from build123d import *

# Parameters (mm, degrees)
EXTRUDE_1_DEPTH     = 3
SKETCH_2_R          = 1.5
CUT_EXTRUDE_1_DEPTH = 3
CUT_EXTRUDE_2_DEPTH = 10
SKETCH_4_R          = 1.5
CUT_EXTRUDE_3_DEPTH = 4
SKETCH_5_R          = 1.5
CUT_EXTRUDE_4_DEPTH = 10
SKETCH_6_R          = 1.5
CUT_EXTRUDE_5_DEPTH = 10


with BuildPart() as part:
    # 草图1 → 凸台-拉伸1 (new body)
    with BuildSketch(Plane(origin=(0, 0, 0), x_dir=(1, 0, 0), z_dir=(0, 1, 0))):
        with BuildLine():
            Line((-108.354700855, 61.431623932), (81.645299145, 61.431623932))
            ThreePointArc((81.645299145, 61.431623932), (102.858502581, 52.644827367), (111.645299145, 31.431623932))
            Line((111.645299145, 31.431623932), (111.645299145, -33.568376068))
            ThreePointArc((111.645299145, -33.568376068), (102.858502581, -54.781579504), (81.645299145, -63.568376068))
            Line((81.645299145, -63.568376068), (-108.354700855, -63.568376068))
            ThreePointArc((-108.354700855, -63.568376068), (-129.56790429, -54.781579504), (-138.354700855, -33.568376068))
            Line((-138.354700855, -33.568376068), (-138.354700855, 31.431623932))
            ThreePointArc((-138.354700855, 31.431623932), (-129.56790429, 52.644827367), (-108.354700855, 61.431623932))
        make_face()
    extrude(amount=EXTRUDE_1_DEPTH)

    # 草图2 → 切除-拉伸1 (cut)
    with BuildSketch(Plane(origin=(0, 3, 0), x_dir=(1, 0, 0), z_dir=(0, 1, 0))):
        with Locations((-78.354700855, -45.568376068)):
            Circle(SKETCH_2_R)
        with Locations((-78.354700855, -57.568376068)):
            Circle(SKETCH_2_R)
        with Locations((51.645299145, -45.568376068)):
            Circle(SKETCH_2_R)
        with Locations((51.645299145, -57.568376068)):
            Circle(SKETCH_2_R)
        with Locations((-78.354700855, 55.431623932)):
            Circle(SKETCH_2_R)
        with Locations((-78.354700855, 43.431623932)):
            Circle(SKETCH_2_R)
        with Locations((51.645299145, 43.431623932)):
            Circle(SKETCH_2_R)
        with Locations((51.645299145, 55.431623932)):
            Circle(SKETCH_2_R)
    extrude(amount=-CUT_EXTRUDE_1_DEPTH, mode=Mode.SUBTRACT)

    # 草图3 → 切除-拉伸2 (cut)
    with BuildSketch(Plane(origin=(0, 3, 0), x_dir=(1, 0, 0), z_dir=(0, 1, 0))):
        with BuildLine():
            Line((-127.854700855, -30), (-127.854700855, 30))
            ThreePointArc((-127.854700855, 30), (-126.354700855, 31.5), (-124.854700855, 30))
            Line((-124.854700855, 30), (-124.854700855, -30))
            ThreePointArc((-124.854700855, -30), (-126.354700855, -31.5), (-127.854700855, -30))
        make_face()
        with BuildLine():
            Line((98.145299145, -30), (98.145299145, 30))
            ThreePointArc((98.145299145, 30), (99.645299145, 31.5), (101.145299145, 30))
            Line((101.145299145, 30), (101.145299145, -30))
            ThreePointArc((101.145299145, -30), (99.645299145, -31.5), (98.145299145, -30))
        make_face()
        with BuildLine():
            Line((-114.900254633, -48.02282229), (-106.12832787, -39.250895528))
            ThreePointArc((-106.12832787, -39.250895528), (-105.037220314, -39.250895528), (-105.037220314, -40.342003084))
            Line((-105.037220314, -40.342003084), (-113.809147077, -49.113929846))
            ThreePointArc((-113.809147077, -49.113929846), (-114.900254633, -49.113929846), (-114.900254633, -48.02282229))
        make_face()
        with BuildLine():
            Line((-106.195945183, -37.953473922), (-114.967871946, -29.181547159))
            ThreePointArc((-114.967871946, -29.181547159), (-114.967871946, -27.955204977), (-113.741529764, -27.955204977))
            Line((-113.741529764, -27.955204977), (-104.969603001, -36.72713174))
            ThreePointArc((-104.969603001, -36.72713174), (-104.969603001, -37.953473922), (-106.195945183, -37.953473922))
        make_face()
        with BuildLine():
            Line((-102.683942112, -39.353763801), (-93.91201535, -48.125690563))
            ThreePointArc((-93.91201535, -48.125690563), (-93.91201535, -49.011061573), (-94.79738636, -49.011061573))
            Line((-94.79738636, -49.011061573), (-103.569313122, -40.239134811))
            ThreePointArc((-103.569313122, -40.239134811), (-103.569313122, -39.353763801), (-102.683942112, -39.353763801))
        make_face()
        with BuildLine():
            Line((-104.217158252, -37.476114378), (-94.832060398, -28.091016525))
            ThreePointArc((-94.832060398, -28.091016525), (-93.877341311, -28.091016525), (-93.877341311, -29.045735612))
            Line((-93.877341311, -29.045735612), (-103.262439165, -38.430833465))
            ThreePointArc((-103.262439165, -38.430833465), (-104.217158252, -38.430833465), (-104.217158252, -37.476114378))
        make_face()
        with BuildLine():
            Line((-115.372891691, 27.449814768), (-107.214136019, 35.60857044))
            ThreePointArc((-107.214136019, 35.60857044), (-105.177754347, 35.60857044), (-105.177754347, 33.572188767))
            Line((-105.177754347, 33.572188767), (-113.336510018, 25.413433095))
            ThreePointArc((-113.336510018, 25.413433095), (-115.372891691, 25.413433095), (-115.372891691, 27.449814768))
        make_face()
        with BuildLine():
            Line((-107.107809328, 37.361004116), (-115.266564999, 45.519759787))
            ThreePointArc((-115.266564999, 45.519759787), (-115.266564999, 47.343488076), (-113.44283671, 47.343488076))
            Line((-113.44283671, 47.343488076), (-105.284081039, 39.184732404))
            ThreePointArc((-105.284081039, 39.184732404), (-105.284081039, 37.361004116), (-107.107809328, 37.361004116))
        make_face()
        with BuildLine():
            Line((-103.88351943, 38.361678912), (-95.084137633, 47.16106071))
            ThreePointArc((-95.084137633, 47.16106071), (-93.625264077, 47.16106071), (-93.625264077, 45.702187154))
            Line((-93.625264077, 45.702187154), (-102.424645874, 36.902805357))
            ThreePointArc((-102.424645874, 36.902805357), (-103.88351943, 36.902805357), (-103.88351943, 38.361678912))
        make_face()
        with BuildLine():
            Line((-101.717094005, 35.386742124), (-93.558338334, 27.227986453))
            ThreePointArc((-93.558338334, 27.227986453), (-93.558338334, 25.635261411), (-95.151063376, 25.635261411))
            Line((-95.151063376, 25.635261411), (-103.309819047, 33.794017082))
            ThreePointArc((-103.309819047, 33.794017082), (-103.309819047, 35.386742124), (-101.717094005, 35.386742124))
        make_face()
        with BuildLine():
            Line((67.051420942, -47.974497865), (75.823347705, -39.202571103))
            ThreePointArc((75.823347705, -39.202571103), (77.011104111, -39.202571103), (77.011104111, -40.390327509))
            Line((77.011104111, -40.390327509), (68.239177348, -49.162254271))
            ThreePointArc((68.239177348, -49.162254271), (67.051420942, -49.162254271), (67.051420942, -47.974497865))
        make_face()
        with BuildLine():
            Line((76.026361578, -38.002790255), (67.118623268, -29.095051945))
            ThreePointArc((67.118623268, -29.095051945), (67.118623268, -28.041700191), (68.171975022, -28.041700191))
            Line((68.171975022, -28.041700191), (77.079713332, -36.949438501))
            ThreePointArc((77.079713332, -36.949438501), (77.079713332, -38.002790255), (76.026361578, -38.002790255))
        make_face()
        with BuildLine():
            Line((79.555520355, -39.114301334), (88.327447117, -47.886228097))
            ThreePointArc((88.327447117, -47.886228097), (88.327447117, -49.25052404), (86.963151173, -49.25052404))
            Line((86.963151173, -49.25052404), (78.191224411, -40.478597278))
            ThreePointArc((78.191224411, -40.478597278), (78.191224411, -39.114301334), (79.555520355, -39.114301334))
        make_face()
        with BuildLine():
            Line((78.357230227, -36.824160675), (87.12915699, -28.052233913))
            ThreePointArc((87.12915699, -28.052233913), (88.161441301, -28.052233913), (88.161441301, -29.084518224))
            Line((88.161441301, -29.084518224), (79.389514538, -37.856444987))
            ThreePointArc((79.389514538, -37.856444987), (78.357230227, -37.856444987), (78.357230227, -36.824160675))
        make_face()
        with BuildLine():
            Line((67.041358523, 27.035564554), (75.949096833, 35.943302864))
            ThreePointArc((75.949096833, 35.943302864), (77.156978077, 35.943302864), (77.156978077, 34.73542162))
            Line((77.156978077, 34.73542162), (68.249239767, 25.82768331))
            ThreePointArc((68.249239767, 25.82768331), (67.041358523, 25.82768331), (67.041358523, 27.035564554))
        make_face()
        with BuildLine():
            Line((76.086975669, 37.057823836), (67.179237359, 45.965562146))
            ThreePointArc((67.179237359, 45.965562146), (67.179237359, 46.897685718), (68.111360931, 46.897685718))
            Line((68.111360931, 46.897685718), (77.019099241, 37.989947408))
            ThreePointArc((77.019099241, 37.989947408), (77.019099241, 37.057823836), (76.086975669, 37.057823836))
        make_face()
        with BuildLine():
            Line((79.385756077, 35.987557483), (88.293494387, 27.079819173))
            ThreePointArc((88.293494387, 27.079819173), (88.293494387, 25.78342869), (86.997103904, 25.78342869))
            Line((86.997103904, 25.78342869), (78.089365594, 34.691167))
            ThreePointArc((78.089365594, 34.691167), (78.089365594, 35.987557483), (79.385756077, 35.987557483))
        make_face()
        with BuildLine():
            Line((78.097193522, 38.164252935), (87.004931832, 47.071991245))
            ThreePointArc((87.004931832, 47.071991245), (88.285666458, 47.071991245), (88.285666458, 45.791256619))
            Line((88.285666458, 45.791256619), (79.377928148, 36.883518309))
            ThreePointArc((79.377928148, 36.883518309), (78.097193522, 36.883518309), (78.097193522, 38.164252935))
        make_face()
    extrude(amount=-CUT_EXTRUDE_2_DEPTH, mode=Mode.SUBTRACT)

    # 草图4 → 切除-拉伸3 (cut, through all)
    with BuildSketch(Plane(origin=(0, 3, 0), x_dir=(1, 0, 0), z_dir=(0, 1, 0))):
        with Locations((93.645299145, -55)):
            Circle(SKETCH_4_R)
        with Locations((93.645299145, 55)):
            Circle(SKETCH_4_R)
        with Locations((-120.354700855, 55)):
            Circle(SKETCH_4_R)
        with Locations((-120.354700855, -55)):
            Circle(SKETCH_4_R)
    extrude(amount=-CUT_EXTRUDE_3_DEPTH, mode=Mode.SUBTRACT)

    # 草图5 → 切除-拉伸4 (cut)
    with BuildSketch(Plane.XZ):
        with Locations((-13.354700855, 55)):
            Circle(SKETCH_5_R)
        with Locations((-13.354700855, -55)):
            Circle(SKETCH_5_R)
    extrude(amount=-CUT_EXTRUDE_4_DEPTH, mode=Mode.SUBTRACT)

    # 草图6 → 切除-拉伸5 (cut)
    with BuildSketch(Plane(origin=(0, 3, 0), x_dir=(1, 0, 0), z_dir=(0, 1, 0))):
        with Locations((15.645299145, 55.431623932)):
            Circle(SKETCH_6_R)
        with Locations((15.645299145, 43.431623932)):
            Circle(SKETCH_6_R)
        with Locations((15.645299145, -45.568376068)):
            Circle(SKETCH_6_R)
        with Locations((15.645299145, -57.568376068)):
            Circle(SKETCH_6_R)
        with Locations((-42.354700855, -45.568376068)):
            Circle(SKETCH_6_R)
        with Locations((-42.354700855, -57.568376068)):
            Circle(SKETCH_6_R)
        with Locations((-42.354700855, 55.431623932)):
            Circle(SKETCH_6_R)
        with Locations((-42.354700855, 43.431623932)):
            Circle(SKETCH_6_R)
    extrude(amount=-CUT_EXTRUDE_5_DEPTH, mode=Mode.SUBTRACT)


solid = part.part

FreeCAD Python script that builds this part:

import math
import FreeCAD as App
import Part
import Sketcher

doc = App.newDocument("Part")
body = doc.addObject("PartDesign::Body", "Body")

# Sketch on XZ plane
sketch1 = body.newObject("Sketcher::SketchObject", "Sketch")
sketch1.AttachmentSupport = (doc.getObject("XZ_Plane"), [""])
sketch1.MapMode = "FlatFace"
sketch1.addGeometry(Part.LineSegment(App.Vector(82, -61, 0), App.Vector(-108, -61, 0)), False)
sketch1.addGeometry(Part.ArcOfCircle(Part.Circle(App.Vector(-108, -31, 0), App.Vector(0, 0, 1), 30), math.radians(-180), math.radians(-90)), False)
sketch1.addGeometry(Part.LineSegment(App.Vector(-138, -31, 0), App.Vector(-138, 34, 0)), False)
sketch1.addGeometry(Part.ArcOfCircle(Part.Circle(App.Vector(-108, 34, 0), App.Vector(0, 0, 1), 30), math.radians(90), math.radians(180)), False)
sketch1.addGeometry(Part.LineSegment(App.Vector(-108, 64, 0), App.Vector(82, 64, 0)), False)
sketch1.addGeometry(Part.ArcOfCircle(Part.Circle(App.Vector(82, 34, 0), App.Vector(0, 0, 1), 30), math.radians(0), math.radians(90)), False)
sketch1.addGeometry(Part.LineSegment(App.Vector(112, 34, 0), App.Vector(112, -31, 0)), False)
sketch1.addGeometry(Part.ArcOfCircle(Part.Circle(App.Vector(82, -31, 0), App.Vector(0, 0, 1), 30), math.radians(-90), math.radians(0)), False)
sketch1.addConstraint(Sketcher.Constraint("Tangent", 0, 2, 1, 2))
sketch1.addConstraint(Sketcher.Constraint("Tangent", 1, 1, 2, 1))
sketch1.addConstraint(Sketcher.Constraint("Tangent", 2, 2, 3, 2))
sketch1.addConstraint(Sketcher.Constraint("Tangent", 3, 1, 4, 1))
sketch1.addConstraint(Sketcher.Constraint("Tangent", 4, 2, 5, 2))
sketch1.addConstraint(Sketcher.Constraint("Tangent", 5, 1, 6, 1))
sketch1.addConstraint(Sketcher.Constraint("Tangent", 6, 2, 7, 2))
sketch1.addConstraint(Sketcher.Constraint("Tangent", 7, 1, 0, 1))
sketch1.addConstraint(Sketcher.Constraint("Horizontal", 0))
sketch1.addConstraint(Sketcher.Constraint("Vertical", 2))
sketch1.addConstraint(Sketcher.Constraint("Horizontal", 4))
sketch1.addConstraint(Sketcher.Constraint("Vertical", 6))
sketch1.addConstraint(Sketcher.Constraint("Equal", 1, 3))
sketch1.addConstraint(Sketcher.Constraint("Equal", 3, 5))
sketch1.addConstraint(Sketcher.Constraint("Equal", 5, 7))
sketch1.addConstraint(Sketcher.Constraint("Radius", 1, 30.0))
sketch1.addConstraint(Sketcher.Constraint("DistanceX", 0, 2, 0, 1, 190.0))
sketch1.addConstraint(Sketcher.Constraint("DistanceY", 2, 1, 2, 2, 65.0))
sketch1.addConstraint(Sketcher.Constraint("DistanceX", 1, 3, -1, 1, 108.354701))
sketch1.addConstraint(Sketcher.Constraint("DistanceY", 1, 3, -1, 1, 31.431624))
pad1 = body.newObject("PartDesign::Pad", "Pad")
pad1.Profile = sketch1
pad1.Length = 3
pad1.Reversed = True

# Sketch on XZ plane
sketch2 = body.newObject("Sketcher::SketchObject", "Sketch001")
sketch2.AttachmentSupport = (doc.getObject("XZ_Plane"), [""])
sketch2.MapMode = "FlatFace"
sketch2.AttachmentOffset = App.Placement(App.Vector(0, 0, -3), App.Rotation())
sketch2.addGeometry(Part.Circle(App.Vector(-78.4, 45.6, 0), App.Vector(0, 0, 1), 1.5), False)
sketch2.addGeometry(Part.Circle(App.Vector(-78.4, 57.6, 0), App.Vector(0, 0, 1), 1.5), False)
sketch2.addGeometry(Part.Circle(App.Vector(51.6, 45.6, 0), App.Vector(0, 0, 1), 1.5), False)
sketch2.addGeometry(Part.Circle(App.Vector(51.6, 57.6, 0), App.Vector(0, 0, 1), 1.5), False)
sketch2.addGeometry(Part.Circle(App.Vector(-78.4, -55.4, 0), App.Vector(0, 0, 1), 1.5), False)
sketch2.addGeometry(Part.Circle(App.Vector(-78.4, -43.4, 0), App.Vector(0, 0, 1), 1.5), False)
sketch2.addGeometry(Part.Circle(App.Vector(51.6, -43.4, 0), App.Vector(0, 0, 1), 1.5), False)
sketch2.addGeometry(Part.Circle(App.Vector(51.6, -55.4, 0), App.Vector(0, 0, 1), 1.5), False)
sketch2.addConstraint(Sketcher.Constraint("Equal", 0, 1))
sketch2.addConstraint(Sketcher.Constraint("Equal", 1, 2))
sketch2.addConstraint(Sketcher.Constraint("Equal", 2, 3))
sketch2.addConstraint(Sketcher.Constraint("Equal", 3, 4))
sketch2.addConstraint(Sketcher.Constraint("Equal", 4, 5))
sketch2.addConstraint(Sketcher.Constraint("Equal", 5, 6))
sketch2.addConstraint(Sketcher.Constraint("Equal", 6, 7))
sketch2.addConstraint(Sketcher.Constraint("Horizontal", 0, 3, 2, 3))
sketch2.addConstraint(Sketcher.Constraint("Horizontal", 1, 3, 3, 3))
sketch2.addConstraint(Sketcher.Constraint("Horizontal", 5, 3, 6, 3))
sketch2.addConstraint(Sketcher.Constraint("Horizontal", 4, 3, 7, 3))
sketch2.addConstraint(Sketcher.Constraint("Vertical", 0, 3, 1, 3))
sketch2.addConstraint(Sketcher.Constraint("Vertical", 2, 3, 3, 3))
sketch2.addConstraint(Sketcher.Constraint("Vertical", 1, 3, 4, 3))
sketch2.addConstraint(Sketcher.Constraint("Vertical", 4, 3, 5, 3))
sketch2.addConstraint(Sketcher.Constraint("Vertical", 3, 3, 6, 3))
sketch2.addConstraint(Sketcher.Constraint("Vertical", 6, 3, 7, 3))
sketch2.addConstraint(Sketcher.Constraint("Diameter", 0, 3.0))
sketch2.addConstraint(Sketcher.Constraint("DistanceY", 0, 3, 1, 3, 12.0))
sketch2.addConstraint(Sketcher.Constraint("DistanceX", 0, 3, 2, 3, 130.0))
sketch2.addConstraint(Sketcher.Constraint("DistanceY", 4, 3, 0, 3, 101.0))
sketch2.addConstraint(Sketcher.Constraint("DistanceY", 4, 3, 5, 3, 12.0))
sketch2.addConstraint(Sketcher.Constraint("DistanceX", 0, 3, -1, 1, 78.354701))
sketch2.addConstraint(Sketcher.Constraint("DistanceY", -1, 1, 0, 3, 45.568376))
pocket1 = body.newObject("PartDesign::Pocket", "Pocket")
pocket1.Profile = sketch2
pocket1.Length = 3
pocket1.Reversed = True

# Sketch on XZ plane
sketch3 = body.newObject("Sketcher::SketchObject", "Sketch002")
sketch3.AttachmentSupport = (doc.getObject("XZ_Plane"), [""])
sketch3.MapMode = "FlatFace"
sketch3.AttachmentOffset = App.Placement(App.Vector(0, 0, -3), App.Rotation())
sketch3.addGeometry(Part.LineSegment(App.Vector(-127.9, -30, 0), App.Vector(-127.9, 30, 0)), False)
sketch3.addGeometry(Part.ArcOfCircle(Part.Circle(App.Vector(-126.4, 30, 0), App.Vector(0, 0, 1), 1.5), math.radians(0), math.radians(180)), False)
sketch3.addGeometry(Part.LineSegment(App.Vector(-124.9, 30, 0), App.Vector(-124.9, -30, 0)), False)
sketch3.addGeometry(Part.ArcOfCircle(Part.Circle(App.Vector(-126.4, -30, 0), App.Vector(0, 0, 1), 1.5), math.radians(180), math.radians(360)), False)
sketch3.addGeometry(Part.LineSegment(App.Vector(98.1, -30, 0), App.Vector(98.1, 30, 0)), False)
sketch3.addGeometry(Part.ArcOfCircle(Part.Circle(App.Vector(99.6, 30, 0), App.Vector(0, 0, 1), 1.5), math.radians(0), math.radians(180)), False)
sketch3.addGeometry(Part.LineSegment(App.Vector(101.1, 30, 0), App.Vector(101.1, -30, 0)), False)
sketch3.addGeometry(Part.ArcOfCircle(Part.Circle(App.Vector(99.6, -30, 0), App.Vector(0, 0, 1), 1.5), math.radians(180), math.radians(360)), False)
sketch3.addGeometry(Part.LineSegment(App.Vector(-106.1, 39.3, 0), App.Vector(-114.9, 48, 0)), False)
sketch3.addGeometry(Part.ArcOfCircle(Part.Circle(App.Vector(-114.4, 48.6, 0), App.Vector(0, 0, 1), 0.8), math.radians(45), math.radians(225)), False)
sketch3.addGeometry(Part.LineSegment(App.Vector(-113.8, 49.1, 0), App.Vector(-105, 40.3, 0)), False)
sketch3.addGeometry(Part.ArcOfCircle(Part.Circle(App.Vector(-105.6, 39.8, 0), App.Vector(0, 0, 1), 0.8), math.radians(-135), math.radians(45)), False)
sketch3.addGeometry(Part.LineSegment(App.Vector(-115, 29.2, 0), App.Vector(-106.2, 38, 0)), False)
sketch3.addGeometry(Part.ArcOfCircle(Part.Circle(App.Vector(-105.6, 37.3, 0), App.Vector(0, 0, 1), 0.9), math.radians(-45), math.radians(135)), False)
sketch3.addGeometry(Part.LineSegment(App.Vector(-105, 36.7, 0), App.Vector(-113.7, 28, 0)), False)
sketch3.addGeometry(Part.ArcOfCircle(Part.Circle(App.Vector(-114.4, 28.6, 0), App.Vector(0, 0, 1), 0.9), math.radians(135), math.radians(315)), False)
sketch3.addGeometry(Part.LineSegment(App.Vector(-93.9, 48.1, 0), App.Vector(-102.7, 39.4, 0)), False)
sketch3.addGeometry(Part.ArcOfCircle(Part.Circle(App.Vector(-103.1, 39.8, 0), App.Vector(0, 0, 1), 0.6), math.radians(135), math.radians(315)), False)
sketch3.addGeometry(Part.LineSegment(App.Vector(-103.6, 40.2, 0), App.Vector(-94.8, 49, 0)), False)
sketch3.addGeometry(Part.ArcOfCircle(Part.Circle(App.Vector(-94.4, 48.6, 0), App.Vector(0, 0, 1), 0.6), math.radians(-45), math.radians(135)), False)
sketch3.addGeometry(Part.LineSegment(App.Vector(-94.8, 28.1, 0), App.Vector(-104.2, 37.5, 0)), False)
sketch3.addGeometry(Part.ArcOfCircle(Part.Circle(App.Vector(-103.7, 38, 0), App.Vector(0, 0, 1), 0.7), math.radians(45), math.radians(225)), False)
sketch3.addGeometry(Part.LineSegment(App.Vector(-103.3, 38.4, 0), App.Vector(-93.9, 29, 0)), False)
sketch3.addGeometry(Part.ArcOfCircle(Part.Circle(App.Vector(-94.4, 28.6, 0), App.Vector(0, 0, 1), 0.7), math.radians(-135), math.radians(45)), False)
sketch3.addGeometry(Part.LineSegment(App.Vector(-107.2, -35.6, 0), App.Vector(-115.4, -27.4, 0)), False)
sketch3.addGeometry(Part.ArcOfCircle(Part.Circle(App.Vector(-114.4, -26.4, 0), App.Vector(0, 0, 1), 1.4), math.radians(45), math.radians(225)), False)
sketch3.addGeometry(Part.LineSegment(App.Vector(-113.3, -25.4, 0), App.Vector(-105.2, -33.6, 0)), False)
sketch3.addGeometry(Part.ArcOfCircle(Part.Circle(App.Vector(-106.2, -34.6, 0), App.Vector(0, 0, 1), 1.4), math.radians(-135), math.radians(45)), False)
sketch3.addGeometry(Part.LineSegment(App.Vector(-115.3, -45.5, 0), App.Vector(-107.1, -37.4, 0)), False)
sketch3.addGeometry(Part.ArcOfCircle(Part.Circle(App.Vector(-106.2, -38.3, 0), App.Vector(0, 0, 1), 1.3), math.radians(-45), math.radians(135)), False)
sketch3.addGeometry(Part.LineSegment(App.Vector(-105.3, -39.2, 0), App.Vector(-113.4, -47.3, 0)), False)
sketch3.addGeometry(Part.ArcOfCircle(Part.Circle(App.Vector(-114.4, -46.4, 0), App.Vector(0, 0, 1), 1.3), math.radians(135), math.radians(315)), False)
sketch3.addGeometry(Part.LineSegment(App.Vector(-95.1, -47.2, 0), App.Vector(-103.9, -38.4, 0)), False)
sketch3.addGeometry(Part.ArcOfCircle(Part.Circle(App.Vector(-103.2, -37.6, 0), App.Vector(0, 0, 1), 1), math.radians(45), math.radians(225)), False)
sketch3.addGeometry(Part.LineSegment(App.Vector(-102.4, -36.9, 0), App.Vector(-93.6, -45.7, 0)), False)
sketch3.addGeometry(Part.ArcOfCircle(Part.Circle(App.Vector(-94.4, -46.4, 0), App.Vector(0, 0, 1), 1), math.radians(-135), math.radians(45)), False)
sketch3.addGeometry(Part.LineSegment(App.Vector(-93.6, -27.2, 0), App.Vector(-101.7, -35.4, 0)), False)
sketch3.addGeometry(Part.ArcOfCircle(Part.Circle(App.Vector(-102.5, -34.6, 0), App.Vector(0, 0, 1), 1.1), math.radians(135), math.radians(315)), False)
sketch3.addGeometry(Part.LineSegment(App.Vector(-103.3, -33.8, 0), App.Vector(-95.2, -25.6, 0)), False)
sketch3.addGeometry(Part.ArcOfCircle(Part.Circle(App.Vector(-94.4, -26.4, 0), App.Vector(0, 0, 1), 1.1), math.radians(-45), math.radians(135)), False)
sketch3.addGeometry(Part.LineSegment(App.Vector(75.8, 39.2, 0), App.Vector(67.1, 48, 0)), False)
sketch3.addGeometry(Part.ArcOfCircle(Part.Circle(App.Vector(67.6, 48.6, 0), App.Vector(0, 0, 1), 0.8), math.radians(45), math.radians(225)), False)
sketch3.addGeometry(Part.LineSegment(App.Vector(68.2, 49.2, 0), App.Vector(77, 40.4, 0)), False)
sketch3.addGeometry(Part.ArcOfCircle(Part.Circle(App.Vector(76.4, 39.8, 0), App.Vector(0, 0, 1), 0.8), math.radians(-135), math.radians(45)), False)
sketch3.addGeometry(Part.LineSegment(App.Vector(67.1, 29.1, 0), App.Vector(76, 38, 0)), False)
sketch3.addGeometry(Part.ArcOfCircle(Part.Circle(App.Vector(76.6, 37.5, 0), App.Vector(0, 0, 1), 0.7), math.radians(-45), math.radians(135)), False)
sketch3.addGeometry(Part.LineSegment(App.Vector(77.1, 36.9, 0), App.Vector(68.2, 28, 0)), False)
sketch3.addGeometry(Part.ArcOfCircle(Part.Circle(App.Vector(67.6, 28.6, 0), App.Vector(0, 0, 1), 0.7), math.radians(135), math.radians(315)), False)
sketch3.addGeometry(Part.LineSegment(App.Vector(88.3, 47.9, 0), App.Vector(79.6, 39.1, 0)), False)
sketch3.addGeometry(Part.ArcOfCircle(Part.Circle(App.Vector(78.9, 39.8, 0), App.Vector(0, 0, 1), 1), math.radians(135), math.radians(315)), False)
sketch3.addGeometry(Part.LineSegment(App.Vector(78.2, 40.5, 0), App.Vector(87, 49.3, 0)), False)
sketch3.addGeometry(Part.ArcOfCircle(Part.Circle(App.Vector(87.6, 48.6, 0), App.Vector(0, 0, 1), 1), math.radians(-45), math.radians(135)), False)
sketch3.addGeometry(Part.LineSegment(App.Vector(87.1, 28.1, 0), App.Vector(78.4, 36.8, 0)), False)
sketch3.addGeometry(Part.ArcOfCircle(Part.Circle(App.Vector(78.9, 37.3, 0), App.Vector(0, 0, 1), 0.7), math.radians(45), math.radians(225)), False)
sketch3.addGeometry(Part.LineSegment(App.Vector(79.4, 37.9, 0), App.Vector(88.2, 29.1, 0)), False)
sketch3.addGeometry(Part.ArcOfCircle(Part.Circle(App.Vector(87.6, 28.6, 0), App.Vector(0, 0, 1), 0.7), math.radians(-135), math.radians(45)), False)
sketch3.addGeometry(Part.LineSegment(App.Vector(75.9, -35.9, 0), App.Vector(67, -27, 0)), False)
sketch3.addGeometry(Part.ArcOfCircle(Part.Circle(App.Vector(67.6, -26.4, 0), App.Vector(0, 0, 1), 0.9), math.radians(45), math.radians(225)), False)
sketch3.addGeometry(Part.LineSegment(App.Vector(68.2, -25.8, 0), App.Vector(77.2, -34.7, 0)), False)
sketch3.addGeometry(Part.ArcOfCircle(Part.Circle(App.Vector(76.6, -35.3, 0), App.Vector(0, 0, 1), 0.9), math.radians(-135), math.radians(45)), False)
sketch3.addGeometry(Part.LineSegment(App.Vector(67.2, -46, 0), App.Vector(76.1, -37.1, 0)), False)
sketch3.addGeometry(Part.ArcOfCircle(Part.Circle(App.Vector(76.6, -37.5, 0), App.Vector(0, 0, 1), 0.7), math.radians(-45), math.radians(135)), False)
sketch3.addGeometry(Part.LineSegment(App.Vector(77, -38, 0), App.Vector(68.1, -46.9, 0)), False)
sketch3.addGeometry(Part.ArcOfCircle(Part.Circle(App.Vector(67.6, -46.4, 0), App.Vector(0, 0, 1), 0.7), math.radians(135), math.radians(315)), False)
sketch3.addGeometry(Part.LineSegment(App.Vector(88.3, -27.1, 0), App.Vector(79.4, -36, 0)), False)
sketch3.addGeometry(Part.ArcOfCircle(Part.Circle(App.Vector(78.7, -35.3, 0), App.Vector(0, 0, 1), 0.9), math.radians(135), math.radians(315)), False)
sketch3.addGeometry(Part.LineSegment(App.Vector(78.1, -34.7, 0), App.Vector(87, -25.8, 0)), False)
sketch3.addGeometry(Part.ArcOfCircle(Part.Circle(App.Vector(87.6, -26.4, 0), App.Vector(0, 0, 1), 0.9), math.radians(-45), math.radians(135)), False)
sketch3.addGeometry(Part.LineSegment(App.Vector(87, -47.1, 0), App.Vector(78.1, -38.2, 0)), False)
sketch3.addGeometry(Part.ArcOfCircle(Part.Circle(App.Vector(78.7, -37.5, 0), App.Vector(0, 0, 1), 0.9), math.radians(45), math.radians(225)), False)
sketch3.addGeometry(Part.LineSegment(App.Vector(79.4, -36.9, 0), App.Vector(88.3, -45.8, 0)), False)
sketch3.addGeometry(Part.ArcOfCircle(Part.Circle(App.Vector(87.6, -46.4, 0), App.Vector(0, 0, 1), 0.9), math.radians(-135), math.radians(45)), False)
sketch3.addConstraint(Sketcher.Constraint("Tangent", 0, 2, 1, 2))
sketch3.addConstraint(Sketcher.Constraint("Tangent", 1, 1, 2, 1))
sketch3.addConstraint(Sketcher.Constraint("Tangent", 2, 2, 3, 2))
sketch3.addConstraint(Sketcher.Constraint("Tangent", 3, 1, 0, 1))
sketch3.addConstraint(Sketcher.Constraint("Tangent", 4, 2, 5, 2))
sketch3.addConstraint(Sketcher.Constraint("Tangent", 5, 1, 6, 1))
sketch3.addConstraint(Sketcher.Constraint("Tangent", 6, 2, 7, 2))
sketch3.addConstraint(Sketcher.Constraint("Tangent", 7, 1, 4, 1))
sketch3.addConstraint(Sketcher.Constraint("Tangent", 8, 2, 9, 2))
sketch3.addConstraint(Sketcher.Constraint("Tangent", 9, 1, 10, 1))
sketch3.addConstraint(Sketcher.Constraint("Tangent", 10, 2, 11, 2))
sketch3.addConstraint(Sketcher.Constraint("Tangent", 11, 1, 8, 1))
sketch3.addConstraint(Sketcher.Constraint("Tangent", 12, 2, 13, 2))
sketch3.addConstraint(Sketcher.Constraint("Tangent", 13, 1, 14, 1))
sketch3.addConstraint(Sketcher.Constraint("Tangent", 14, 2, 15, 2))
sketch3.addConstraint(Sketcher.Constraint("Tangent", 15, 1, 12, 1))
sketch3.addConstraint(Sketcher.Constraint("Tangent", 16, 2, 17, 2))
sketch3.addConstraint(Sketcher.Constraint("Tangent", 17, 1, 18, 1))
sketch3.addConstraint(Sketcher.Constraint("Tangent", 18, 2, 19, 2))
sketch3.addConstraint(Sketcher.Constraint("Tangent", 19, 1, 16, 1))
sketch3.addConstraint(Sketcher.Constraint("Tangent", 20, 2, 21, 2))
sketch3.addConstraint(Sketcher.Constraint("Tangent", 21, 1, 22, 1))
sketch3.addConstraint(Sketcher.Constraint("Tangent", 22, 2, 23, 2))
sketch3.addConstraint(Sketcher.Constraint("Tangent", 23, 1, 20, 1))
sketch3.addConstraint(Sketcher.Constraint("Tangent", 24, 2, 25, 2))
sketch3.addConstraint(Sketcher.Constraint("Tangent", 25, 1, 26, 1))
sketch3.addConstraint(Sketcher.Constraint("Tangent", 26, 2, 27, 2))
sketch3.addConstraint(Sketcher.Constraint("Tangent", 27, 1, 24, 1))
sketch3.addConstraint(Sketcher.Constraint("Tangent", 28, 2, 29, 2))
sketch3.addConstraint(Sketcher.Constraint("Tangent", 29, 1, 30, 1))
sketch3.addConstraint(Sketcher.Constraint("Tangent", 30, 2, 31, 2))
sketch3.addConstraint(Sketcher.Constraint("Tangent", 31, 1, 28, 1))
sketch3.addConstraint(Sketcher.Constraint("Tangent", 32, 2, 33, 2))
sketch3.addConstraint(Sketcher.Constraint("Tangent", 33, 1, 34, 1))
sketch3.addConstraint(Sketcher.Constraint("Tangent", 34, 2, 35, 2))
sketch3.addConstraint(Sketcher.Constraint("Tangent", 35, 1, 32, 1))
sketch3.addConstraint(Sketcher.Constraint("Tangent", 36, 2, 37, 2))
sketch3.addConstraint(Sketcher.Constraint("Tangent", 37, 1, 38, 1))
sketch3.addConstraint(Sketcher.Constraint("Tangent", 38, 2, 39, 2))
sketch3.addConstraint(Sketcher.Constraint("Tangent", 39, 1, 36, 1))
sketch3.addConstraint(Sketcher.Constraint("Tangent", 40, 2, 41, 2))
sketch3.addConstraint(Sketcher.Constraint("Tangent", 41, 1, 42, 1))
sketch3.addConstraint(Sketcher.Constraint("Tangent", 42, 2, 43, 2))
sketch3.addConstraint(Sketcher.Constraint("Tangent", 43, 1, 40, 1))
sketch3.addConstraint(Sketcher.Constraint("Tangent", 44, 2, 45, 2))
sketch3.addConstraint(Sketcher.Constraint("Tangent", 45, 1, 46, 1))
sketch3.addConstraint(Sketcher.Constraint("Tangent", 46, 2, 47, 2))
sketch3.addConstraint(Sketcher.Constraint("Tangent", 47, 1, 44, 1))
sketch3.addConstraint(Sketcher.Constraint("Tangent", 48, 2, 49, 2))
sketch3.addConstraint(Sketcher.Constraint("Tangent", 49, 1, 50, 1))
sketch3.addConstraint(Sketcher.Constraint("Tangent", 50, 2, 51, 2))
sketch3.addConstraint(Sketcher.Constraint("Tangent", 51, 1, 48, 1))
sketch3.addConstraint(Sketcher.Constraint("Tangent", 52, 2, 53, 2))
sketch3.addConstraint(Sketcher.Constraint("Tangent", 53, 1, 54, 1))
sketch3.addConstraint(Sketcher.Constraint("Tangent", 54, 2, 55, 2))
sketch3.addConstraint(Sketcher.Constraint("Tangent", 55, 1, 52, 1))
sketch3.addConstraint(Sketcher.Constraint("Tangent", 56, 2, 57, 2))
sketch3.addConstraint(Sketcher.Constraint("Tangent", 57, 1, 58, 1))
sketch3.addConstraint(Sketcher.Constraint("Tangent", 58, 2, 59, 2))
sketch3.addConstraint(Sketcher.Constraint("Tangent", 59, 1, 56, 1))
sketch3.addConstraint(Sketcher.Constraint("Tangent", 60, 2, 61, 2))
sketch3.addConstraint(Sketcher.Constraint("Tangent", 61, 1, 62, 1))
sketch3.addConstraint(Sketcher.Constraint("Tangent", 62, 2, 63, 2))
sketch3.addConstraint(Sketcher.Constraint("Tangent", 63, 1, 60, 1))
sketch3.addConstraint(Sketcher.Constraint("Tangent", 64, 2, 65, 2))
sketch3.addConstraint(Sketcher.Constraint("Tangent", 65, 1, 66, 1))
sketch3.addConstraint(Sketcher.Constraint("Tangent", 66, 2, 67, 2))
sketch3.addConstraint(Sketcher.Constraint("Tangent", 67, 1, 64, 1))
sketch3.addConstraint(Sketcher.Constraint("Tangent", 68, 2, 69, 2))
sketch3.addConstraint(Sketcher.Constraint("Tangent", 69, 1, 70, 1))
sketch3.addConstraint(Sketcher.Constraint("Tangent", 70, 2, 71, 2))
sketch3.addConstraint(Sketcher.Constraint("Tangent", 71, 1, 68, 1))
sketch3.addConstraint(Sketcher.Constraint("Vertical", 0))
sketch3.addConstraint(Sketcher.Constraint("Vertical", 2))
sketch3.addConstraint(Sketcher.Constraint("Vertical", 4))
sketch3.addConstraint(Sketcher.Constraint("Vertical", 6))
sketch3.addConstraint(Sketcher.Constraint("Equal", 3, 5))
sketch3.addConstraint(Sketcher.Constraint("Equal", 9, 11))
sketch3.addConstraint(Sketcher.Constraint("Equal", 13, 15))
sketch3.addConstraint(Sketcher.Constraint("Equal", 17, 19))
sketch3.addConstraint(Sketcher.Constraint("Equal", 21, 23))
sketch3.addConstraint(Sketcher.Constraint("Equal", 25, 27))
sketch3.addConstraint(Sketcher.Constraint("Equal", 29, 31))
sketch3.addConstraint(Sketcher.Constraint("Equal", 33, 35))
sketch3.addConstraint(Sketcher.Constraint("Equal", 37, 39))
sketch3.addConstraint(Sketcher.Constraint("Equal", 41, 43))
sketch3.addConstraint(Sketcher.Constraint("Equal", 45, 47))
sketch3.addConstraint(Sketcher.Constraint("Equal", 49, 51))
sketch3.addConstraint(Sketcher.Constraint("Equal", 53, 55))
sketch3.addConstraint(Sketcher.Constraint("Equal", 57, 59))
sketch3.addConstraint(Sketcher.Constraint("Equal", 61, 63))
sketch3.addConstraint(Sketcher.Constraint("Equal", 65, 67))
sketch3.addConstraint(Sketcher.Constraint("Equal", 69, 71))
sketch3.addConstraint(Sketcher.Constraint("Perpendicular", 10, 12))
sketch3.addConstraint(Sketcher.Constraint("Parallel", 14, 16))
sketch3.addConstraint(Sketcher.Constraint("Perpendicular", 18, 20))
sketch3.addConstraint(Sketcher.Constraint("Parallel", 22, 24))
sketch3.addConstraint(Sketcher.Constraint("Perpendicular", 26, 28))
sketch3.addConstraint(Sketcher.Constraint("Perpendicular", 30, 32))
sketch3.addConstraint(Sketcher.Constraint("Perpendicular", 34, 36))
sketch3.addConstraint(Sketcher.Constraint("Perpendicular", 38, 40))
sketch3.addConstraint(Sketcher.Constraint("Perpendicular", 42, 44))
sketch3.addConstraint(Sketcher.Constraint("Parallel", 46, 48))
sketch3.addConstraint(Sketcher.Constraint("Perpendicular", 50, 52))
sketch3.addConstraint(Sketcher.Constraint("Parallel", 54, 56))
sketch3.addConstraint(Sketcher.Constraint("Perpendicular", 58, 60))
sketch3.addConstraint(Sketcher.Constraint("Parallel", 62, 64))
sketch3.addConstraint(Sketcher.Constraint("Perpendicular", 66, 68))
sketch3.addConstraint(Sketcher.Constraint("Horizontal", 1, 3, 5, 3))
sketch3.addConstraint(Sketcher.Constraint("Horizontal", 3, 3, 7, 3))
sketch3.addConstraint(Sketcher.Constraint("Horizontal", 11, 3, 17, 3))
sketch3.addConstraint(Sketcher.Constraint("Horizontal", 9, 3, 19, 3))
sketch3.addConstraint(Sketcher.Constraint("Horizontal", 15, 3, 23, 3))
sketch3.addConstraint(Sketcher.Constraint("Horizontal", 31, 3, 35, 3))
sketch3.addConstraint(Sketcher.Constraint("Horizontal", 27, 3, 37, 3))
sketch3.addConstraint(Sketcher.Constraint("Horizontal", 25, 3, 39, 3))
sketch3.addConstraint(Sketcher.Constraint("Horizontal", 19, 3, 41, 3))
sketch3.addConstraint(Sketcher.Constraint("Horizontal", 17, 3, 43, 3))
sketch3.addConstraint(Sketcher.Constraint("Horizontal", 23, 3, 47, 3))
sketch3.addConstraint(Sketcher.Constraint("Horizontal", 43, 3, 49, 3))
sketch3.addConstraint(Sketcher.Constraint("Horizontal", 41, 3, 51, 3))
sketch3.addConstraint(Sketcher.Constraint("Horizontal", 13, 3, 53, 3))
sketch3.addConstraint(Sketcher.Constraint("Horizontal", 47, 3, 55, 3))
sketch3.addConstraint(Sketcher.Constraint("Horizontal", 39, 3, 57, 3))
sketch3.addConstraint(Sketcher.Constraint("Horizontal", 35, 3, 63, 3))
sketch3.addConstraint(Sketcher.Constraint("Horizontal", 59, 3, 65, 3))
sketch3.addConstraint(Sketcher.Constraint("Horizontal", 57, 3, 67, 3))
sketch3.addConstraint(Sketcher.Constraint("Horizontal", 61, 3, 69, 3))
sketch3.addConstraint(Sketcher.Constraint("Horizontal", 63, 3, 71, 3))
sketch3.addConstraint(Sketcher.Constraint("Horizontal", 21, 3, 12, 2))
sketch3.addConstraint(Sketcher.Constraint("Horizontal", 45, 3, 20, 2))
sketch3.addConstraint(Sketcher.Constraint("Vertical", 11, 3, 13, 3))
sketch3.addConstraint(Sketcher.Constraint("Vertical", 9, 3, 15, 3))
sketch3.addConstraint(Sketcher.Constraint("Vertical", 19, 3, 23, 3))
sketch3.addConstraint(Sketcher.Constraint("Vertical", 15, 3, 25, 3))
sketch3.addConstraint(Sketcher.Constraint("Vertical", 27, 3, 29, 3))
sketch3.addConstraint(Sketcher.Constraint("Vertical", 25, 3, 31, 3))
sketch3.addConstraint(Sketcher.Constraint("Vertical", 23, 3, 35, 3))
sketch3.addConstraint(Sketcher.Constraint("Vertical", 35, 3, 39, 3))
sketch3.addConstraint(Sketcher.Constraint("Vertical", 41, 3, 47, 3))
sketch3.addConstraint(Sketcher.Constraint("Vertical", 49, 3, 53, 3))
sketch3.addConstraint(Sketcher.Constraint("Vertical", 51, 3, 55, 3))
sketch3.addConstraint(Sketcher.Constraint("Vertical", 47, 3, 57, 3))
sketch3.addConstraint(Sketcher.Constraint("Vertical", 45, 3, 59, 3))
sketch3.addConstraint(Sketcher.Constraint("Vertical", 59, 3, 61, 3))
sketch3.addConstraint(Sketcher.Constraint("Vertical", 57, 3, 63, 3))
sketch3.addConstraint(Sketcher.Constraint("Vertical", 55, 3, 67, 3))
sketch3.addConstraint(Sketcher.Constraint("Vertical", 65, 3, 69, 3))
sketch3.addConstraint(Sketcher.Constraint("Vertical", 29, 3, 12, 2))
sketch3.addConstraint(Sketcher.Constraint("Radius", 1, 1.5))
sketch3.addConstraint(Sketcher.Constraint("DistanceY", 0, 1, 0, 2, 60.0))
sketch3.addConstraint(Sketcher.Constraint("DistanceY", -1, 1, 1, 3, 30.0))
sketch3.addConstraint(Sketcher.Constraint("Radius", 57, 0.854101))
sketch3.addConstraint(Sketcher.Constraint("Radius", 9, 0.77153))
sketch3.addConstraint(Sketcher.Constraint("Radius", 17, 0.626052))
sketch3.addConstraint(Sketcher.Constraint("Radius", 21, 0.675088))
sketch3.addConstraint(Sketcher.Constraint("Radius", 25, 1.439939))
sketch3.addConstraint(Sketcher.Constraint("Radius", 29, 1.289571))
sketch3.addConstraint(Sketcher.Constraint("Radius", 33, 1.031579))
sketch3.addConstraint(Sketcher.Constraint("Radius", 41, 0.839871))
sketch3.addConstraint(Sketcher.Constraint("Radius", 61, 0.659111))
sketch3.addConstraint(Sketcher.Constraint("Radius", 13, 0.867155))
sketch3.addConstraint(Sketcher.Constraint("Radius", 37, 1.126227))
sketch3.addConstraint(Sketcher.Constraint("Radius", 45, 0.744832))
sketch3.addConstraint(Sketcher.Constraint("Radius", 49, 0.964703))
sketch3.addConstraint(Sketcher.Constraint("Radius", 53, 0.729935))
sketch3.addConstraint(Sketcher.Constraint("Radius", 65, 0.916687))
sketch3.addConstraint(Sketcher.Constraint("Radius", 69, 0.905616))
sketch3.addConstraint(Sketcher.Constraint("DistanceX", 1, 3, -1, 1, 126.354701))
sketch3.addConstraint(Sketcher.Constraint("DistanceX", -1, 1, 5, 3, 99.645299))
sketch3.addConstraint(Sketcher.Constraint("DistanceX", 9, 3, -1, 1, 114.354701))
sketch3.addConstraint(Sketcher.Constraint("DistanceX", 19, 3, -1, 1, 94.354701))
sketch3.addConstraint(Sketcher.Constraint("DistanceX", 21, 3, -1, 1, 103.739799))
sketch3.addConstraint(Sketcher.Constraint("DistanceX", -1, 1, 41, 3, 67.645299))
sketch3.addConstraint(Sketcher.Constraint("DistanceX", -1, 1, 51, 3, 87.645299))
sketch3.addConstraint(Sketcher.Constraint("DistanceY", -1, 1, 46, 2, 28.0417))
sketch3.addConstraint(Sketcher.Constraint("DistanceY", -1, 1, 48, 2, 39.114301))
sketch3.addConstraint(Sketcher.Constraint("DistanceY", 27, 3, -1, 1, 34.59038))
sketch3.addConstraint(Sketcher.Constraint("DistanceY", 29, 3, -1, 1, 38.272868))
sketch3.addConstraint(Sketcher.Constraint("DistanceX", 32, 2, -1, 1, 103.883519))
pocket2 = body.newObject("PartDesign::Pocket", "Pocket001")
pocket2.Profile = sketch3
pocket2.Length = 10
pocket2.Reversed = True

# Sketch on XZ plane
sketch4 = body.newObject("Sketcher::SketchObject", "Sketch003")
sketch4.AttachmentSupport = (doc.getObject("XZ_Plane"), [""])
sketch4.MapMode = "FlatFace"
sketch4.AttachmentOffset = App.Placement(App.Vector(0, 0, -3), App.Rotation())
sketch4.addGeometry(Part.Circle(App.Vector(93.6, 55, 0), App.Vector(0, 0, 1), 1.5), False)
sketch4.addGeometry(Part.Circle(App.Vector(93.6, -55, 0), App.Vector(0, 0, 1), 1.5), False)
sketch4.addGeometry(Part.Circle(App.Vector(-120.4, -55, 0), App.Vector(0, 0, 1), 1.5), False)
sketch4.addGeometry(Part.Circle(App.Vector(-120.4, 55, 0), App.Vector(0, 0, 1), 1.5), False)
sketch4.addConstraint(Sketcher.Constraint("Equal", 0, 1))
sketch4.addConstraint(Sketcher.Constraint("Equal", 1, 2))
sketch4.addConstraint(Sketcher.Constraint("Equal", 2, 3))
sketch4.addConstraint(Sketcher.Constraint("Symmetric", 0, 3, 1, 3, -1))
sketch4.addConstraint(Sketcher.Constraint("Symmetric", 2, 3, 3, 3, -1))
sketch4.addConstraint(Sketcher.Constraint("Horizontal", 1, 3, 2, 3))
sketch4.addConstraint(Sketcher.Constraint("Diameter", 0, 3.0))
sketch4.addConstraint(Sketcher.Constraint("DistanceY", -1, 1, 0, 3, 55.0))
sketch4.addConstraint(Sketcher.Constraint("DistanceX", 2, 3, 1, 3, 214.0))
sketch4.addConstraint(Sketcher.Constraint("DistanceX", -1, 1, 0, 3, 93.645299))
pocket3 = body.newObject("PartDesign::Pocket", "Pocket002")
pocket3.Profile = sketch4
pocket3.Type = "ThroughAll"
pocket3.Reversed = True

# Sketch on XZ plane
sketch5 = body.newObject("Sketcher::SketchObject", "Sketch004")
sketch5.AttachmentSupport = (doc.getObject("XZ_Plane"), [""])
sketch5.MapMode = "FlatFace"
sketch5.addGeometry(Part.Circle(App.Vector(-13.4, 55, 0), App.Vector(0, 0, 1), 1.5), False)
sketch5.addGeometry(Part.Circle(App.Vector(-13.4, -55, 0), App.Vector(0, 0, 1), 1.5), False)
sketch5.addConstraint(Sketcher.Constraint("Equal", 0, 1))
sketch5.addConstraint(Sketcher.Constraint("Symmetric", 0, 3, 1, 3, -1))
sketch5.addConstraint(Sketcher.Constraint("Diameter", 0, 3.0))
sketch5.addConstraint(Sketcher.Constraint("DistanceY", -1, 1, 0, 3, 55.0))
sketch5.addConstraint(Sketcher.Constraint("DistanceX", 0, 3, -1, 1, 13.354701))
pocket4 = body.newObject("PartDesign::Pocket", "Pocket003")
pocket4.Profile = sketch5
pocket4.Length = 10

# Sketch on XZ plane
sketch6 = body.newObject("Sketcher::SketchObject", "Sketch005")
sketch6.AttachmentSupport = (doc.getObject("XZ_Plane"), [""])
sketch6.MapMode = "FlatFace"
sketch6.AttachmentOffset = App.Placement(App.Vector(0, 0, -3), App.Rotation())
sketch6.addGeometry(Part.Circle(App.Vector(15.6, -55.4, 0), App.Vector(0, 0, 1), 1.5), False)
sketch6.addGeometry(Part.Circle(App.Vector(15.6, -43.4, 0), App.Vector(0, 0, 1), 1.5), False)
sketch6.addGeometry(Part.Circle(App.Vector(15.6, 45.6, 0), App.Vector(0, 0, 1), 1.5), False)
sketch6.addGeometry(Part.Circle(App.Vector(15.6, 57.6, 0), App.Vector(0, 0, 1), 1.5), False)
sketch6.addGeometry(Part.Circle(App.Vector(-42.4, 45.6, 0), App.Vector(0, 0, 1), 1.5), False)
sketch6.addGeometry(Part.Circle(App.Vector(-42.4, 57.6, 0), App.Vector(0, 0, 1), 1.5), False)
sketch6.addGeometry(Part.Circle(App.Vector(-42.4, -55.4, 0), App.Vector(0, 0, 1), 1.5), False)
sketch6.addGeometry(Part.Circle(App.Vector(-42.4, -43.4, 0), App.Vector(0, 0, 1), 1.5), False)
sketch6.addConstraint(Sketcher.Constraint("Equal", 0, 1))
sketch6.addConstraint(Sketcher.Constraint("Equal", 1, 2))
sketch6.addConstraint(Sketcher.Constraint("Equal", 2, 3))
sketch6.addConstraint(Sketcher.Constraint("Equal", 3, 4))
sketch6.addConstraint(Sketcher.Constraint("Equal", 4, 5))
sketch6.addConstraint(Sketcher.Constraint("Equal", 5, 6))
sketch6.addConstraint(Sketcher.Constraint("Equal", 6, 7))
sketch6.addConstraint(Sketcher.Constraint("Horizontal", 2, 3, 4, 3))
sketch6.addConstraint(Sketcher.Constraint("Horizontal", 3, 3, 5, 3))
sketch6.addConstraint(Sketcher.Constraint("Horizontal", 0, 3, 6, 3))
sketch6.addConstraint(Sketcher.Constraint("Horizontal", 1, 3, 7, 3))
sketch6.addConstraint(Sketcher.Constraint("Vertical", 0, 3, 1, 3))
sketch6.addConstraint(Sketcher.Constraint("Vertical", 1, 3, 2, 3))
sketch6.addConstraint(Sketcher.Constraint("Vertical", 2, 3, 3, 3))
sketch6.addConstraint(Sketcher.Constraint("Vertical", 4, 3, 5, 3))
sketch6.addConstraint(Sketcher.Constraint("Vertical", 5, 3, 6, 3))
sketch6.addConstraint(Sketcher.Constraint("Vertical", 6, 3, 7, 3))
sketch6.addConstraint(Sketcher.Constraint("Diameter", 0, 3.0))
sketch6.addConstraint(Sketcher.Constraint("DistanceY", 0, 3, 1, 3, 12.0))
sketch6.addConstraint(Sketcher.Constraint("DistanceY", 1, 3, 2, 3, 89.0))
sketch6.addConstraint(Sketcher.Constraint("DistanceY", 2, 3, 3, 3, 12.0))
sketch6.addConstraint(Sketcher.Constraint("DistanceX", 4, 3, 2, 3, 58.0))
sketch6.addConstraint(Sketcher.Constraint("DistanceX", -1, 1, 0, 3, 15.645299))
sketch6.addConstraint(Sketcher.Constraint("DistanceY", 0, 3, -1, 1, 55.431624))
pocket5 = body.newObject("PartDesign::Pocket", "Pocket004")
pocket5.Profile = sketch6
pocket5.Length = 10
pocket5.Reversed = True

doc.recompute()
